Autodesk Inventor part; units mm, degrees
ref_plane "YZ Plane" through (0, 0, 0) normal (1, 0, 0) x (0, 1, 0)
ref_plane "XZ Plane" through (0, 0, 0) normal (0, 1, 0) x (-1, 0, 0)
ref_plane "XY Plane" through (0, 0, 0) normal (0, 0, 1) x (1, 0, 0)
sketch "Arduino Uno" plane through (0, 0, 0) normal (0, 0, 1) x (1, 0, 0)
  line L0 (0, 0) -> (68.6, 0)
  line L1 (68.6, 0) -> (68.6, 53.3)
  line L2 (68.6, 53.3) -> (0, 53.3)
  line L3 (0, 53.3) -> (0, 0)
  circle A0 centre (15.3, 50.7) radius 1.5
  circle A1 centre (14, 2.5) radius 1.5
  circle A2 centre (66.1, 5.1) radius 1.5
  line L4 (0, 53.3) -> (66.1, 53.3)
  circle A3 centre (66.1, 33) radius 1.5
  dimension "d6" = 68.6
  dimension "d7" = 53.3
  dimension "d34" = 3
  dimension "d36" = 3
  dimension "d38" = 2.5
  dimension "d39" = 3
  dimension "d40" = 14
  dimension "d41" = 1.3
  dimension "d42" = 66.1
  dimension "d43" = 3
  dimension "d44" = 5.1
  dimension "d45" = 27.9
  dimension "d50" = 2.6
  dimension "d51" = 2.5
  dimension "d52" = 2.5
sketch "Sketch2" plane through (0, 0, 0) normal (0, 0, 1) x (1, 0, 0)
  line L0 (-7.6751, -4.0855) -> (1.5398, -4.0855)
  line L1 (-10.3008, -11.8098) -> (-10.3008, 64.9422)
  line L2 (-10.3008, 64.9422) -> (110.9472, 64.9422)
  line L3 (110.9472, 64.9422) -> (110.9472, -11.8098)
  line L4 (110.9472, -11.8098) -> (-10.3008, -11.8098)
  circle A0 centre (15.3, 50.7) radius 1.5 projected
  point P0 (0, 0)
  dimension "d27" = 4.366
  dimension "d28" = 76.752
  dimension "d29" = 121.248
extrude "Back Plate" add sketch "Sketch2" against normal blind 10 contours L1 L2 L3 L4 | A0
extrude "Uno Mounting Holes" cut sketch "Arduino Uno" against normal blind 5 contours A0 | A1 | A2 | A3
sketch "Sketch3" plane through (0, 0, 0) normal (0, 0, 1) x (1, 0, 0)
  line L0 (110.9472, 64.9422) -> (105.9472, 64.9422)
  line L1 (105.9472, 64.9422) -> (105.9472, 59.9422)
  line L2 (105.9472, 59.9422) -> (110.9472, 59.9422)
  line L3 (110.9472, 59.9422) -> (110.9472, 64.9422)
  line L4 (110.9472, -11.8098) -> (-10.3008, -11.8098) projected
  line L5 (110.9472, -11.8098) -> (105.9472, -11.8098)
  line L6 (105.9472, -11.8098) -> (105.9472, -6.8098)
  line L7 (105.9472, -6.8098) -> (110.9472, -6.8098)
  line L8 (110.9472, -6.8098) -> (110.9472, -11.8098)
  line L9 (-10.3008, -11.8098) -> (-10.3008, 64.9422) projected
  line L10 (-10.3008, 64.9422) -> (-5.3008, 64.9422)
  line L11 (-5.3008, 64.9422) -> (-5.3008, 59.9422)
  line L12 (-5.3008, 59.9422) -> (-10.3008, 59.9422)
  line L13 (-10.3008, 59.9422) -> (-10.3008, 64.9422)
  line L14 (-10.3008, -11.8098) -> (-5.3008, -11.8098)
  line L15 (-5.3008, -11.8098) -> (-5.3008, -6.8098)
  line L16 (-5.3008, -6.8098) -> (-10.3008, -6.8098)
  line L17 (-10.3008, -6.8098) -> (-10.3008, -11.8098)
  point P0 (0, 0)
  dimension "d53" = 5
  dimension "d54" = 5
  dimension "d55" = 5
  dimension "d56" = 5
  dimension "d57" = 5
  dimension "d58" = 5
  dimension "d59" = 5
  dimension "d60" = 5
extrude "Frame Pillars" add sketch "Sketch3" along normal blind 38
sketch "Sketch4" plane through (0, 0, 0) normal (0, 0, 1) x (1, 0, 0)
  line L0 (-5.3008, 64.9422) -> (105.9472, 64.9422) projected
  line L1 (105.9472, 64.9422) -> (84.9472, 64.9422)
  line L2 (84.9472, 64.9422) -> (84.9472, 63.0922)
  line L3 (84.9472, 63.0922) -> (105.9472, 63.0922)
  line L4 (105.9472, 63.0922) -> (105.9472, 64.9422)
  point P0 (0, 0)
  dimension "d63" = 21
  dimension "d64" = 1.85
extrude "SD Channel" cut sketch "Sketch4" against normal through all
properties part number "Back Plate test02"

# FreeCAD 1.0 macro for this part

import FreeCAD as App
import Part
import Sketcher

V = App.Vector


def add_polygon(sketch, points):
    """Adds a closed chain of lines whose ends are joined by coincident constraints."""
    first, n = sketch.GeometryCount, len(points)
    for a, b in zip(points, points[1:] + points[:1]):
        sketch.addGeometry(Part.LineSegment(App.Vector(*a, 0), App.Vector(*b, 0)), False)
    for i in range(n):
        sketch.addConstraint(Sketcher.Constraint("Coincident", first + i, 2, first + (i + 1) % n, 1))

doc = App.newDocument("Part")
body = doc.addObject("PartDesign::Body", "Body")

sketch1 = body.newObject("Sketcher::SketchObject", "Sketch")
sketch1.AttachmentSupport = (doc.getObject("XY_Plane"), [""])
sketch1.MapMode = "FlatFace"
add_polygon(sketch1, [(-10, 65), (-10, -12), (111, -12), (111, 65)])
sketch1.addConstraint(Sketcher.Constraint("Vertical", 0))
sketch1.addConstraint(Sketcher.Constraint("Horizontal", 1))
sketch1.addConstraint(Sketcher.Constraint("Vertical", 2))
sketch1.addConstraint(Sketcher.Constraint("Horizontal", 3))
sketch1.addConstraint(Sketcher.Constraint("DistanceX", 1, 1, 1, 2, 121.248))
sketch1.addConstraint(Sketcher.Constraint("DistanceY", 0, 2, 0, 1, 76.752))
sketch1.addConstraint(Sketcher.Constraint("DistanceX", 0, 2, -1, 1, 10.3008))
sketch1.addConstraint(Sketcher.Constraint("DistanceY", 0, 2, -1, 1, 11.8098))
pad1 = body.newObject("PartDesign::Pad", "Pad")
pad1.Profile = sketch1
pad1.Length = 10
pad1.Reversed = True

sketch2 = body.newObject("Sketcher::SketchObject", "Sketch001")
sketch2.AttachmentSupport = (doc.getObject("XY_Plane"), [""])
sketch2.MapMode = "FlatFace"
sketch2.addGeometry(Part.Circle(V(15.3, 50.7, 0), V(0, 0, 1), 1.5), False)
sketch2.addGeometry(Part.Circle(V(14, 2.5, 0), V(0, 0, 1), 1.5), False)
sketch2.addGeometry(Part.Circle(V(66.1, 5.1, 0), V(0, 0, 1), 1.5), False)
sketch2.addGeometry(Part.Circle(V(66.1, 33, 0), V(0, 0, 1), 1.5), False)
sketch2.addConstraint(Sketcher.Constraint("Equal", 0, 1))
sketch2.addConstraint(Sketcher.Constraint("Equal", 1, 2))
sketch2.addConstraint(Sketcher.Constraint("Equal", 2, 3))
sketch2.addConstraint(Sketcher.Constraint("Vertical", 2, 3, 3, 3))
sketch2.addConstraint(Sketcher.Constraint("Diameter", 0, 3.0))
sketch2.addConstraint(Sketcher.Constraint("DistanceX", -1, 1, 1, 3, 14.0))
sketch2.addConstraint(Sketcher.Constraint("DistanceY", -1, 1, 1, 3, 2.5))
sketch2.addConstraint(Sketcher.Constraint("DistanceX", -1, 1, 2, 3, 66.1))
sketch2.addConstraint(Sketcher.Constraint("DistanceY", -1, 1, 2, 3, 5.1))
sketch2.addConstraint(Sketcher.Constraint("DistanceX", 1, 3, 0, 3, 1.3))
sketch2.addConstraint(Sketcher.Constraint("DistanceY", 2, 3, 3, 3, 27.9))
sketch2.addConstraint(Sketcher.Constraint("DistanceY", -1, 1, 0, 3, 50.7))
pocket1 = body.newObject("PartDesign::Pocket", "Pocket")
pocket1.Profile = sketch2
pocket1.Length = 5

sketch3 = body.newObject("Sketcher::SketchObject", "Sketch002")
sketch3.AttachmentSupport = (doc.getObject("XY_Plane"), [""])
sketch3.MapMode = "FlatFace"
add_polygon(sketch3, [(110.9, 59.9), (110.9, 64.9), (105.9, 64.9), (105.9, 59.9)])
add_polygon(sketch3, [(-10.3, 64.9), (-10.3, 59.9), (-5.3, 59.9), (-5.3, 64.9)])
add_polygon(sketch3, [(-10.3, -11.8), (-5.3, -11.8), (-5.3, -6.8), (-10.3, -6.8)])
add_polygon(sketch3, [(105.9, -11.8), (110.9, -11.8), (110.9, -6.8), (105.9, -6.8)])
sketch3.addConstraint(Sketcher.Constraint("Vertical", 0))
sketch3.addConstraint(Sketcher.Constraint("Horizontal", 1))
sketch3.addConstraint(Sketcher.Constraint("Vertical", 2))
sketch3.addConstraint(Sketcher.Constraint("Horizontal", 3))
sketch3.addConstraint(Sketcher.Constraint("Vertical", 4))
sketch3.addConstraint(Sketcher.Constraint("Horizontal", 5))
sketch3.addConstraint(Sketcher.Constraint("Vertical", 6))
sketch3.addConstraint(Sketcher.Constraint("Horizontal", 7))
sketch3.addConstraint(Sketcher.Constraint("Horizontal", 8))
sketch3.addConstraint(Sketcher.Constraint("Vertical", 9))
sketch3.addConstraint(Sketcher.Constraint("Horizontal", 10))
sketch3.addConstraint(Sketcher.Constraint("Vertical", 11))
sketch3.addConstraint(Sketcher.Constraint("Horizontal", 12))
sketch3.addConstraint(Sketcher.Constraint("Vertical", 13))
sketch3.addConstraint(Sketcher.Constraint("Horizontal", 14))
sketch3.addConstraint(Sketcher.Constraint("Vertical", 15))
sketch3.addConstraint(Sketcher.Constraint("Horizontal", 3, 2, 4, 2))
sketch3.addConstraint(Sketcher.Constraint("Horizontal", 1, 2, 6, 2))
sketch3.addConstraint(Sketcher.Constraint("Horizontal", 11, 2, 12, 2))
sketch3.addConstraint(Sketcher.Constraint("Horizontal", 10, 2, 13, 2))
sketch3.addConstraint(Sketcher.Constraint("Vertical", 6, 2, 8, 2))
sketch3.addConstraint(Sketcher.Constraint("Vertical", 7, 2, 10, 2))
sketch3.addConstraint(Sketcher.Constraint("Vertical", 3, 2, 12, 2))
sketch3.addConstraint(Sketcher.Constraint("Vertical", 2, 2, 14, 2))
sketch3.addConstraint(Sketcher.Constraint("Equal", 3, 5))
sketch3.addConstraint(Sketcher.Constraint("Equal", 14, 0))
sketch3.addConstraint(Sketcher.Constraint("Equal", 6, 9))
sketch3.addConstraint(Sketcher.Constraint("DistanceX", 1, 2, 1, 1, 5.0))
sketch3.addConstraint(Sketcher.Constraint("DistanceX", 4, 2, 2, 2, 116.248))
sketch3.addConstraint(Sketcher.Constraint("DistanceY", 8, 2, 5, 2, 71.752))
sketch3.addConstraint(Sketcher.Constraint("DistanceX", -1, 1, 0, 2, 110.9472))
sketch3.addConstraint(Sketcher.Constraint("DistanceY", -1, 1, 0, 2, 64.9422))
pad2 = body.newObject("PartDesign::Pad", "Pad001")
pad2.Profile = sketch3
pad2.Length = 38

sketch4 = body.newObject("Sketcher::SketchObject", "Sketch003")
sketch4.AttachmentSupport = (doc.getObject("XY_Plane"), [""])
sketch4.MapMode = "FlatFace"
add_polygon(sketch4, [(105.9, 64.9), (84.9, 64.9), (84.9, 63.1), (105.9, 63.1)])
sketch4.addConstraint(Sketcher.Constraint("Horizontal", 0))
sketch4.addConstraint(Sketcher.Constraint("Vertical", 1))
sketch4.addConstraint(Sketcher.Constraint("Horizontal", 2))
sketch4.addConstraint(Sketcher.Constraint("Vertical", 3))
sketch4.addConstraint(Sketcher.Constraint("DistanceX", 0, 2, 0, 1, 21.0))
sketch4.addConstraint(Sketcher.Constraint("DistanceY", 1, 2, 1, 1, 1.85))
sketch4.addConstraint(Sketcher.Constraint("DistanceX", -1, 1, 0, 2, 84.9472))
sketch4.addConstraint(Sketcher.Constraint("DistanceY", -1, 1, 0, 2, 64.9422))
pocket2 = body.newObject("PartDesign::Pocket", "Pocket001")
pocket2.Profile = sketch4
pocket2.Type = "ThroughAll"

doc.recompute()
